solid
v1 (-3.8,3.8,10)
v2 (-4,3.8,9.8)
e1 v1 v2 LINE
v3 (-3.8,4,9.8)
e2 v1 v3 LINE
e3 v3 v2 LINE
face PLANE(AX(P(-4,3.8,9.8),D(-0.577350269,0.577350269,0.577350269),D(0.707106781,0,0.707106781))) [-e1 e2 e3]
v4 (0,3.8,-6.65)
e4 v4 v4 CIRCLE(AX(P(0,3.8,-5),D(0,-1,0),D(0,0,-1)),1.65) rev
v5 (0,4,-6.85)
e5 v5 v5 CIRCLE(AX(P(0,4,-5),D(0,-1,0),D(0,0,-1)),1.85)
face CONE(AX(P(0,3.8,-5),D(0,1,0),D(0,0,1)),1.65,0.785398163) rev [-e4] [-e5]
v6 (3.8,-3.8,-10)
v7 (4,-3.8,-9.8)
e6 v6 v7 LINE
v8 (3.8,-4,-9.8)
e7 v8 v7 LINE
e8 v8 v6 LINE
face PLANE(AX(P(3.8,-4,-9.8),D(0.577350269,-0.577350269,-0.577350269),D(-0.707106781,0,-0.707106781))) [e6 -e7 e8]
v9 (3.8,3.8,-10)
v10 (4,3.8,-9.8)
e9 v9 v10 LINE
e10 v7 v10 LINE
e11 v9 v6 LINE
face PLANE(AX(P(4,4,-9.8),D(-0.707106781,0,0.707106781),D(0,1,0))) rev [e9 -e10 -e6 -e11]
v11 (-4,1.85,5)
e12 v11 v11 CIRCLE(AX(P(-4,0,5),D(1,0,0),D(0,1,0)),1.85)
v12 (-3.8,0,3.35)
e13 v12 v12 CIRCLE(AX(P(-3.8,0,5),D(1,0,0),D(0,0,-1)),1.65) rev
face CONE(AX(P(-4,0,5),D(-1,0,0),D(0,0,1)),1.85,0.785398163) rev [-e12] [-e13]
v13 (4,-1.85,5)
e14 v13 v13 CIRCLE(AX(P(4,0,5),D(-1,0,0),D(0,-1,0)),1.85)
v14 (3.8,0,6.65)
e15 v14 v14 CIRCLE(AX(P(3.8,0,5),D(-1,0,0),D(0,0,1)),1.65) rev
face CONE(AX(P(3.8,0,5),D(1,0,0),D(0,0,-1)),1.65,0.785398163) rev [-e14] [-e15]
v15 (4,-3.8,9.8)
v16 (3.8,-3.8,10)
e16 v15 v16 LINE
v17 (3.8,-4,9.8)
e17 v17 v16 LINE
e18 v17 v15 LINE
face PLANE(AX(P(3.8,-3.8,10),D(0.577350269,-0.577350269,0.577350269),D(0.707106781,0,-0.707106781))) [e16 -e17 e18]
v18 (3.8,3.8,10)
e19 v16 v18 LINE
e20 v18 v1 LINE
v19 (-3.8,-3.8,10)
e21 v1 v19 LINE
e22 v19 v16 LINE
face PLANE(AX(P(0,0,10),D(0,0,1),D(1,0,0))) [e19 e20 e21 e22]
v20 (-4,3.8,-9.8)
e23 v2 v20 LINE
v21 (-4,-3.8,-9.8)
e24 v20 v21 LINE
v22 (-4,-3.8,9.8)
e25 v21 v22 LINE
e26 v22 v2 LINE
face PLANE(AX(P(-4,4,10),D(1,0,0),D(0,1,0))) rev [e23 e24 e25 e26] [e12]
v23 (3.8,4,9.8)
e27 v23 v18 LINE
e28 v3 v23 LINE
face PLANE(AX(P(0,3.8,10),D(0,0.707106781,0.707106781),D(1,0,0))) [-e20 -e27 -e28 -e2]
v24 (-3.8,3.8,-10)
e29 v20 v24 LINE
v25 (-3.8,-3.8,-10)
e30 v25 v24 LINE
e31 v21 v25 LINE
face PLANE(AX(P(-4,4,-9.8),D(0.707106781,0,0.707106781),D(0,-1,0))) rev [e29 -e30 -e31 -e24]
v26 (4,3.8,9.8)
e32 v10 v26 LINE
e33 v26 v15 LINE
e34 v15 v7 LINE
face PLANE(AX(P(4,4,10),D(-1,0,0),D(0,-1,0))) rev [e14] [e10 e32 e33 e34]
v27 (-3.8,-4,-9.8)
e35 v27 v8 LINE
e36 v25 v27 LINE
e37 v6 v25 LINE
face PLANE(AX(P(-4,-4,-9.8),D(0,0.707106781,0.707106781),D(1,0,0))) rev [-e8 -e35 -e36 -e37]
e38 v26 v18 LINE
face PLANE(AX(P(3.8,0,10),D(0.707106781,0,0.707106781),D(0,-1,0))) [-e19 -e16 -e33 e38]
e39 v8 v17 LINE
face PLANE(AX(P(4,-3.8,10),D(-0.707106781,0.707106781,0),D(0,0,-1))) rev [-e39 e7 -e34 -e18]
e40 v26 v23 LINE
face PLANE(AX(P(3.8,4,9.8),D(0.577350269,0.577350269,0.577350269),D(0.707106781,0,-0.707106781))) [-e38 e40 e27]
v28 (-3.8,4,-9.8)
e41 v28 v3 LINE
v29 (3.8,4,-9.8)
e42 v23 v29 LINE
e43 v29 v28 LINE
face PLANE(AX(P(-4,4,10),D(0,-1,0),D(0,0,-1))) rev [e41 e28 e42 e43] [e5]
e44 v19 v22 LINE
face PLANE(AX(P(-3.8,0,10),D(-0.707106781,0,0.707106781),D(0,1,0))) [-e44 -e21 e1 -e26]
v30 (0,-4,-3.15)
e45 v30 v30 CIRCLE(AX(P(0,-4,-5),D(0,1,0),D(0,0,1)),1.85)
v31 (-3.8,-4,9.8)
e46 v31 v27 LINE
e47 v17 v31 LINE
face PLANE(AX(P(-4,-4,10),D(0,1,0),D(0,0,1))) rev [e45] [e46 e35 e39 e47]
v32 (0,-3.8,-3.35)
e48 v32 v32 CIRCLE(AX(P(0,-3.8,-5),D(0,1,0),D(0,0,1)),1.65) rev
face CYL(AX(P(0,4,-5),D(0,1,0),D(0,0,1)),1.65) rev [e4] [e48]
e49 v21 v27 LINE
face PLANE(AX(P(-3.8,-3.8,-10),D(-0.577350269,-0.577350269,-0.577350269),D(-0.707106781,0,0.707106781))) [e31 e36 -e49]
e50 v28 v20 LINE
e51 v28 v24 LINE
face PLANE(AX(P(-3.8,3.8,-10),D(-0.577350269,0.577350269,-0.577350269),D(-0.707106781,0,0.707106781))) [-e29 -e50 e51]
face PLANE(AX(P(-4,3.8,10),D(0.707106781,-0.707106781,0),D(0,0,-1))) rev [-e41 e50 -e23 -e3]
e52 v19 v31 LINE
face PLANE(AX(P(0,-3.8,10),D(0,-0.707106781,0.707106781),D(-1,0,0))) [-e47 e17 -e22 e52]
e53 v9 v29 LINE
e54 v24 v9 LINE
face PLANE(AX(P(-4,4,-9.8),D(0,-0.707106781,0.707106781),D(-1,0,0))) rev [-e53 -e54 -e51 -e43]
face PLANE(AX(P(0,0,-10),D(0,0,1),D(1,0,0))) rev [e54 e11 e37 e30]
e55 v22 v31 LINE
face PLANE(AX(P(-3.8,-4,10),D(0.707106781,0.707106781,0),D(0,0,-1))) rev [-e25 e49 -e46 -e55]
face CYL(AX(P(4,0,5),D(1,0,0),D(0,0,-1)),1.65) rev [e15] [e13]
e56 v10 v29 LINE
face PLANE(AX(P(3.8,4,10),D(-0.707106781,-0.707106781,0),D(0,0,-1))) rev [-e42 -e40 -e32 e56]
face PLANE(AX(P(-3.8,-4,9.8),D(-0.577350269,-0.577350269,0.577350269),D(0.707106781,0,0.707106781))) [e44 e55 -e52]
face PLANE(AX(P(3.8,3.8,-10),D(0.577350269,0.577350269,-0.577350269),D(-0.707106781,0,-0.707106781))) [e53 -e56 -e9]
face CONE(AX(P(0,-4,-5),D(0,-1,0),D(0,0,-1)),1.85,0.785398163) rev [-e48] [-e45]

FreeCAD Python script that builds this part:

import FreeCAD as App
import Part
import Sketcher
from FreeCAD import Vector
Q = App.Units.Quantity


def add_polygon(sketch, points):
    """Adds a closed chain of lines whose ends are joined by coincident constraints."""
    first, n = sketch.GeometryCount, len(points)
    for a, b in zip(points, points[1:] + points[:1]):
        sketch.addGeometry(Part.LineSegment(App.Vector(*a, 0), App.Vector(*b, 0)), False)
    for i in range(n):
        sketch.addConstraint(Sketcher.Constraint("Coincident", first + i, 2, first + (i + 1) % n, 1))

doc = App.newDocument("Part")
body = doc.addObject("PartDesign::Body", "Body")

sketch1 = doc.addObject("Sketcher::SketchObject", "Sketch")
body.addObject(sketch1)
sketch1.AttachmentSupport = (doc.XY_Plane, [""])
sketch1.MapMode = "FlatFace"
add_polygon(sketch1, [(-4, 4), (-4, -4), (4, -4), (4, 4)])
sketch1.addConstraint(Sketcher.Constraint("Vertical", 0))
sketch1.addConstraint(Sketcher.Constraint("Horizontal", 1))
sketch1.addConstraint(Sketcher.Constraint("Vertical", 2))
sketch1.addConstraint(Sketcher.Constraint("Horizontal", 3))
sketch1.addConstraint(Sketcher.Constraint("Symmetric", 0, 2, 2, 2, -1, 1))
sketch1.addConstraint(Sketcher.Constraint("Equal", 3, 0))
sketch1.addConstraint(Sketcher.Constraint("DistanceX", 1, 1, 1, 2, Q("8 mm")))
pad1 = doc.addObject("PartDesign::Pad", "Pad")
body.addObject(pad1)
pad1.Profile = sketch1
pad1.Length = 20
pad1.Midplane = True

sketch2 = doc.addObject("Sketcher::SketchObject", "Sketch001")
body.addObject(sketch2)
sketch2.AttachmentSupport = (doc.YZ_Plane, [""])
sketch2.MapMode = "FlatFace"
sketch2.AttachmentOffset = App.Placement(Vector(0, 0, 4), App.Rotation())
sketch2.addGeometry(Part.Circle(Vector(0, 5, 0), Vector(0, 0, 1), 1.6), False)
sketch2.addConstraint(Sketcher.Constraint("PointOnObject", 0, 3, -2))
sketch2.addConstraint(Sketcher.Constraint("Diameter", 0, Q("3.3 mm")))
sketch2.addConstraint(Sketcher.Constraint("DistanceY", -1, 1, 0, 3, Q("5 mm")))
doc.recompute()
hole = doc.addObject("PartDesign::Hole", "Hole")
body.addObject(hole)
hole.Profile = sketch2
hole.ThreadType = "None"
hole.Diameter = 3.3
hole.DepthType = "ThroughAll"

sketch3 = doc.addObject("Sketcher::SketchObject", "Sketch002")
body.addObject(sketch3)
sketch3.AttachmentSupport = (doc.XZ_Plane, [""])
sketch3.MapMode = "FlatFace"
sketch3.AttachmentOffset = App.Placement(Vector(0, 0, -4), App.Rotation())
sketch3.addGeometry(Part.Circle(Vector(0, -5, 0), Vector(0, 0, 1), 1.6), False)
sketch3.addConstraint(Sketcher.Constraint("PointOnObject", 0, 3, -2))
sketch3.addConstraint(Sketcher.Constraint("Diameter", 0, Q("3.3 mm")))
sketch3.addConstraint(Sketcher.Constraint("DistanceY", 0, 3, -1, 1, Q("5 mm")))
doc.recompute()
hole2 = doc.addObject("PartDesign::Hole", "Hole001")
body.addObject(hole2)
hole2.Profile = sketch3
hole2.ThreadType = "None"
hole2.Diameter = 3.3
hole2.DepthType = "ThroughAll"
hole2.Reversed = True
doc.recompute()

chamfer = doc.addObject("PartDesign::Chamfer", "Chamfer")
body.addObject(chamfer)
chamfer.Base = (hole2, ["Edge1"])
chamfer.UseAllEdges = True
chamfer.Size = 0.2

doc.recompute()
